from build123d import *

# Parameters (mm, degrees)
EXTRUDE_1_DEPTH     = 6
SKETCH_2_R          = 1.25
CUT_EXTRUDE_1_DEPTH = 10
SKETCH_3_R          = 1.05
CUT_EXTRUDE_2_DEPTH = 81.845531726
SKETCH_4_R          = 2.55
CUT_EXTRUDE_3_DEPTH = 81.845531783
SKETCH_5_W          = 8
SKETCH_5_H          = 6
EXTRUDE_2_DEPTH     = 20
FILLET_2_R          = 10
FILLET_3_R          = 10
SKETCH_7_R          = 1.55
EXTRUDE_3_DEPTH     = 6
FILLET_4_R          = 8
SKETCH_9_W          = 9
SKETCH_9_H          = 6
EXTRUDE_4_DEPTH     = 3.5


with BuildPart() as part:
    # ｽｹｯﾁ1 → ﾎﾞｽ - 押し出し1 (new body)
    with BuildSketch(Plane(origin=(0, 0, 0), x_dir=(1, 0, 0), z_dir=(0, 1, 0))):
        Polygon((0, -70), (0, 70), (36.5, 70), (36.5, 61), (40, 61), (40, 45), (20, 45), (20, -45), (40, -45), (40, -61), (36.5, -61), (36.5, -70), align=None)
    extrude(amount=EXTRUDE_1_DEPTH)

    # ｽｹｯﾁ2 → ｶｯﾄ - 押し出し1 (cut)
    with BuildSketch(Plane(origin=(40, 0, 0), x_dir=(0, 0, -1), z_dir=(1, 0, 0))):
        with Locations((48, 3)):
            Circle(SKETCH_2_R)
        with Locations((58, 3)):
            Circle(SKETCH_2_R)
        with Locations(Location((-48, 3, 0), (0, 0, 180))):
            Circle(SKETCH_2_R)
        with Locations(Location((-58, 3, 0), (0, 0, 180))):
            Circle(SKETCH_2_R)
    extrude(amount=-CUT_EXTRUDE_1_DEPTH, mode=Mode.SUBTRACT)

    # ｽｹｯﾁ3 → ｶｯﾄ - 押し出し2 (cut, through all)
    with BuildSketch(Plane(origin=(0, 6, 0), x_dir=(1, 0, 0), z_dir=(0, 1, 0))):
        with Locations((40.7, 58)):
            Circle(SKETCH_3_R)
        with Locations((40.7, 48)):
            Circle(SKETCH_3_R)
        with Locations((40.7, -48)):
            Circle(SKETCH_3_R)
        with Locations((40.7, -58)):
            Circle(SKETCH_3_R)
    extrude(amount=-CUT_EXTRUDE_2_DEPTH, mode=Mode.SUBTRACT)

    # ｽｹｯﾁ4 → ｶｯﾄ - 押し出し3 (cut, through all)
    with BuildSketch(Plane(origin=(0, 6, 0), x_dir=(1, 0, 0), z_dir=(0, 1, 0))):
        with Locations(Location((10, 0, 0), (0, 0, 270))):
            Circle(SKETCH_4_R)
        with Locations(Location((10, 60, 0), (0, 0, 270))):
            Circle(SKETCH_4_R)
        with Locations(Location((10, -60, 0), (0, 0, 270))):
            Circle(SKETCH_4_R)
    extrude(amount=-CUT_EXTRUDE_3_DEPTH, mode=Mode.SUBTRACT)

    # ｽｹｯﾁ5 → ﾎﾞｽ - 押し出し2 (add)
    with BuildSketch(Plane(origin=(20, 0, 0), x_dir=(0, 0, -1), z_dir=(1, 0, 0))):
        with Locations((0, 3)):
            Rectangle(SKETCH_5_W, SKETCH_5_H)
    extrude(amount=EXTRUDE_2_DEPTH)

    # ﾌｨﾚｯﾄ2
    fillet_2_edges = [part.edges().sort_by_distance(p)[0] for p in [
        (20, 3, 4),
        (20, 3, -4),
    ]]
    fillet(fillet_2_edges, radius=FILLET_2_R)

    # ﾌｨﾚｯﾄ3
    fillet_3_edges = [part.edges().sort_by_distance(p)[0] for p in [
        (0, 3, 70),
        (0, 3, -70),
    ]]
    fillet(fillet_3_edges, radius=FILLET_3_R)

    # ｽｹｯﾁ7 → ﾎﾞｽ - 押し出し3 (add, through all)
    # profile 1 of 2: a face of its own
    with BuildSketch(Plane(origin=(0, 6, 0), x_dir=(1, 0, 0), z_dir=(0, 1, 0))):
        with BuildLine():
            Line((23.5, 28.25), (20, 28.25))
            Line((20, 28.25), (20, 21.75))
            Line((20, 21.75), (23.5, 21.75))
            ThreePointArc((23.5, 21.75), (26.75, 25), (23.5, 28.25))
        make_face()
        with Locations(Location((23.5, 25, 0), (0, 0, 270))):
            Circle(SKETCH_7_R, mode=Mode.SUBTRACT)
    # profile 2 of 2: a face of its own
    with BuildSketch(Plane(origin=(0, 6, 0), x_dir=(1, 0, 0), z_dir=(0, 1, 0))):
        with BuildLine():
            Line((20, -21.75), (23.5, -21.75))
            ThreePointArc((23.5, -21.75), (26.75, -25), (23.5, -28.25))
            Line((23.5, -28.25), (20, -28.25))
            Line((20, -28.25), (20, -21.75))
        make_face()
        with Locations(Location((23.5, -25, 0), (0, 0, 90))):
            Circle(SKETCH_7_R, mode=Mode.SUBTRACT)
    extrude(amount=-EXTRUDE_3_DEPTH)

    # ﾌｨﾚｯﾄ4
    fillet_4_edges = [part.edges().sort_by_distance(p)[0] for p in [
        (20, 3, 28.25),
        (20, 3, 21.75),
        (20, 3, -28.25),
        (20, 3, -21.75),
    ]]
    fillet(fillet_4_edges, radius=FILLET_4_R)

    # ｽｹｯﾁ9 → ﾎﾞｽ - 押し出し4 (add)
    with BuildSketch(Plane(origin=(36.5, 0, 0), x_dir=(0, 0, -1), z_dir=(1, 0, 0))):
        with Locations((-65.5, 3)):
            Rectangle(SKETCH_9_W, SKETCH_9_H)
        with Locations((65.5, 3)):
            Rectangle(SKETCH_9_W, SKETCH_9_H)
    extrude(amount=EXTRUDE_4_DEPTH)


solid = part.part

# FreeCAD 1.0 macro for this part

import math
import FreeCAD as App
import Part
import Sketcher
from FreeCAD import Vector


def edges_at(feature, points):
    """Names of the edges that pass closest to the given points."""
    edges = feature.Shape.Edges
    near = lambda p: min(range(len(edges)), key=lambda i: edges[i].distToShape(Part.Vertex(*p))[0])
    return sorted({f"Edge{near(p) + 1}" for p in points})

doc = App.newDocument("Part")
body = doc.addObject("PartDesign::Body", "Body")

# Sketch on XZ plane
sketch1 = doc.addObject("Sketcher::SketchObject", "Sketch")
body.addObject(sketch1)
sketch1.AttachmentSupport = (doc.XZ_Plane, [""])
sketch1.MapMode = "FlatFace"
sketch1.addGeometry([
    Part.LineSegment(Vector(0, -70, 0), Vector(0, 70, 0)),  # 0
    Part.LineSegment(Vector(0, 70, 0), Vector(36.5, 70, 0)),  # 1
    Part.LineSegment(Vector(36.5, 70, 0), Vector(36.5, 61, 0)),  # 2
    Part.LineSegment(Vector(36.5, 61, 0), Vector(40, 61, 0)),  # 3
    Part.LineSegment(Vector(40, 61, 0), Vector(40, 45, 0)),  # 4
    Part.LineSegment(Vector(40, 45, 0), Vector(20, 45, 0)),  # 5
    Part.LineSegment(Vector(20, 45, 0), Vector(20, -45, 0)),  # 6
    Part.LineSegment(Vector(20, -45, 0), Vector(40, -45, 0)),  # 7
    Part.LineSegment(Vector(40, -45, 0), Vector(40, -61, 0)),  # 8
    Part.LineSegment(Vector(40, -61, 0), Vector(36.5, -61, 0)),  # 9
    Part.LineSegment(Vector(36.5, -61, 0), Vector(36.5, -70, 0)),  # 10
    Part.LineSegment(Vector(36.5, -70, 0), Vector(0, -70, 0)),  # 11
], False)
sketch1.addConstraint([
    Sketcher.Constraint("Coincident", 0, 2, 1, 1),
    Sketcher.Constraint("Coincident", 1, 2, 2, 1),
    Sketcher.Constraint("Coincident", 2, 2, 3, 1),
    Sketcher.Constraint("Coincident", 3, 2, 4, 1),
    Sketcher.Constraint("Coincident", 4, 2, 5, 1),
    Sketcher.Constraint("Coincident", 5, 2, 6, 1),
    Sketcher.Constraint("Coincident", 6, 2, 7, 1),
    Sketcher.Constraint("Coincident", 7, 2, 8, 1),
    Sketcher.Constraint("Coincident", 8, 2, 9, 1),
    Sketcher.Constraint("Coincident", 9, 2, 10, 1),
    Sketcher.Constraint("Coincident", 10, 2, 11, 1),
    Sketcher.Constraint("Coincident", 11, 2, 0, 1),
    Sketcher.Constraint("Vertical", 0),
    Sketcher.Constraint("Horizontal", 1),
    Sketcher.Constraint("Vertical", 2),
    Sketcher.Constraint("Horizontal", 3),
    Sketcher.Constraint("Vertical", 4),
    Sketcher.Constraint("Horizontal", 5),
    Sketcher.Constraint("Vertical", 6),
    Sketcher.Constraint("Horizontal", 7),
    Sketcher.Constraint("Vertical", 8),
    Sketcher.Constraint("Horizontal", 9),
    Sketcher.Constraint("Vertical", 10),
    Sketcher.Constraint("Horizontal", 11),
    Sketcher.Constraint("Symmetric", 0, 2, 11, 2, -1, 1),
    Sketcher.Constraint("Symmetric", 4, 2, 7, 2, -1),
    Sketcher.Constraint("Symmetric", 2, 2, 9, 2, -1),
    Sketcher.Constraint("DistanceX", 5, 2, 5, 1, 20.0),
    Sketcher.Constraint("DistanceY", 0, 1, 0, 2, 140.0),
    Sketcher.Constraint("DistanceY", 2, 2, 2, 1, 9.0),
    Sketcher.Constraint("DistanceY", 4, 2, 4, 1, 16.0),
    Sketcher.Constraint("DistanceX", 1, 1, 1, 2, 36.5),
    Sketcher.Constraint("DistanceX", 3, 1, 3, 2, 3.5),
])
pad1 = doc.addObject("PartDesign::Pad", "Pad")
body.addObject(pad1)
pad1.Profile = sketch1
pad1.Length = 6
pad1.Reversed = True

# Sketch on YZ plane
sketch2 = doc.addObject("Sketcher::SketchObject", "Sketch001")
body.addObject(sketch2)
sketch2.AttachmentSupport = (doc.YZ_Plane, [""])
sketch2.MapMode = "FlatFace"
sketch2.AttachmentOffset = App.Placement(Vector(0, 0, 40), App.Rotation())
sketch2.addGeometry([
    Part.Circle(Vector(3, -48, 0), Vector(0, 0, 1), 1.25),
    Part.Circle(Vector(3, -58, 0), Vector(0, 0, 1), 1.25),
    Part.Circle(Vector(3, 48, 0), Vector(0, 0, 1), 1.25),
    Part.Circle(Vector(3, 58, 0), Vector(0, 0, 1), 1.25),
], False)
sketch2.addConstraint([
    Sketcher.Constraint("Equal", 0, 1),
    Sketcher.Constraint("Equal", 1, 2),
    Sketcher.Constraint("Equal", 2, 3),
    Sketcher.Constraint("Symmetric", 0, 3, 2, 3, -1),
    Sketcher.Constraint("Symmetric", 1, 3, 3, 3, -1),
    Sketcher.Constraint("Vertical", 0, 3, 1, 3),
    Sketcher.Constraint("Diameter", 0, 2.5),
    Sketcher.Constraint("DistanceX", -1, 1, 0, 3, 3.0),
    Sketcher.Constraint("DistanceY", 0, 3, -1, 1, 48.0),
    Sketcher.Constraint("DistanceY", 1, 3, -1, 1, 58.0),
])
pocket1 = doc.addObject("PartDesign::Pocket", "Pocket")
body.addObject(pocket1)
pocket1.Profile = sketch2
pocket1.Length = 10

# Sketch on XZ plane
sketch3 = doc.addObject("Sketcher::SketchObject", "Sketch002")
body.addObject(sketch3)
sketch3.AttachmentSupport = (doc.XZ_Plane, [""])
sketch3.MapMode = "FlatFace"
sketch3.AttachmentOffset = App.Placement(Vector(0, 0, -6), App.Rotation())
sketch3.addGeometry([
    Part.Circle(Vector(40.7, -58, 0), Vector(0, 0, 1), 1.05),
    Part.Circle(Vector(40.7, -48, 0), Vector(0, 0, 1), 1.05),
    Part.Circle(Vector(40.7, 48, 0), Vector(0, 0, 1), 1.05),
    Part.Circle(Vector(40.7, 58, 0), Vector(0, 0, 1), 1.05),
], False)
sketch3.addConstraint([
    Sketcher.Constraint("Equal", 0, 1),
    Sketcher.Constraint("Equal", 1, 2),
    Sketcher.Constraint("Equal", 2, 3),
    Sketcher.Constraint("Symmetric", 1, 3, 2, 3, -1),
    Sketcher.Constraint("Symmetric", 0, 3, 3, 3, -1),
    Sketcher.Constraint("Vertical", 0, 3, 1, 3),
    Sketcher.Constraint("Diameter", 0, 2.1),
    Sketcher.Constraint("DistanceY", 0, 3, -1, 1, 58.0),
    Sketcher.Constraint("DistanceY", 1, 3, -1, 1, 48.0),
    Sketcher.Constraint("DistanceX", -1, 1, 0, 3, 40.7),
])
pocket2 = doc.addObject("PartDesign::Pocket", "Pocket001")
body.addObject(pocket2)
pocket2.Profile = sketch3
pocket2.Type = "ThroughAll"
pocket2.Reversed = True

# Sketch on XZ plane
sketch4 = doc.addObject("Sketcher::SketchObject", "Sketch003")
body.addObject(sketch4)
sketch4.AttachmentSupport = (doc.XZ_Plane, [""])
sketch4.MapMode = "FlatFace"
sketch4.AttachmentOffset = App.Placement(Vector(0, 0, -6), App.Rotation())
sketch4.addGeometry([
    Part.Circle(Vector(10, 0, 0), Vector(0, 0, 1), 2.55),
    Part.Circle(Vector(10, -60, 0), Vector(0, 0, 1), 2.55),
    Part.Circle(Vector(10, 60, 0), Vector(0, 0, 1), 2.55),
], False)
sketch4.addConstraint([
    Sketcher.Constraint("Equal", 0, 1),
    Sketcher.Constraint("Equal", 1, 2),
    Sketcher.Constraint("Symmetric", 1, 3, 2, 3, -1),
    Sketcher.Constraint("PointOnObject", 0, 3, -1),
    Sketcher.Constraint("Vertical", 0, 3, 1, 3),
    Sketcher.Constraint("Diameter", 0, 5.1),
    Sketcher.Constraint("DistanceX", -1, 1, 0, 3, 10.0),
    Sketcher.Constraint("DistanceY", 1, 3, -1, 1, 60.0),
])
pocket3 = doc.addObject("PartDesign::Pocket", "Pocket002")
body.addObject(pocket3)
pocket3.Profile = sketch4
pocket3.Type = "ThroughAll"
pocket3.Reversed = True

# Sketch on YZ plane
sketch5 = doc.addObject("Sketcher::SketchObject", "Sketch004")
body.addObject(sketch5)
sketch5.AttachmentSupport = (doc.YZ_Plane, [""])
sketch5.MapMode = "FlatFace"
sketch5.AttachmentOffset = App.Placement(Vector(0, 0, 20), App.Rotation())
sketch5.addGeometry([
    Part.LineSegment(Vector(6, 4, 0), Vector(0, 4, 0)),
    Part.LineSegment(Vector(0, 4, 0), Vector(0, -4, 0)),
    Part.LineSegment(Vector(0, -4, 0), Vector(6, -4, 0)),
    Part.LineSegment(Vector(6, -4, 0), Vector(6, 4, 0)),
], False)
sketch5.addConstraint([
    Sketcher.Constraint("Coincident", 0, 2, 1, 1),
    Sketcher.Constraint("Coincident", 1, 2, 2, 1),
    Sketcher.Constraint("Coincident", 2, 2, 3, 1),
    Sketcher.Constraint("Coincident", 3, 2, 0, 1),
    Sketcher.Constraint("Horizontal", 0),
    Sketcher.Constraint("Vertical", 1),
    Sketcher.Constraint("Horizontal", 2),
    Sketcher.Constraint("Vertical", 3),
    Sketcher.Constraint("Symmetric", 0, 2, 1, 2, -1, 1),
    Sketcher.Constraint("DistanceX", 0, 2, 0, 1, 6.0),
    Sketcher.Constraint("DistanceY", 1, 2, 1, 1, 8.0),
])
pad2 = doc.addObject("PartDesign::Pad", "Pad001")
body.addObject(pad2)
pad2.Profile = sketch5
pad2.Length = 20
doc.recompute()

fillet = doc.addObject("PartDesign::Fillet", "Fillet")
body.addObject(fillet)
fillet.Base = (pad2, edges_at(pad2, [(20, 3, 4), (20, 3, -4)]))
fillet.Radius = 10
doc.recompute()

fillet2 = doc.addObject("PartDesign::Fillet", "Fillet001")
body.addObject(fillet2)
fillet2.Base = (fillet, edges_at(fillet, [(0, 3, 70), (0, 3, -70)]))
fillet2.Radius = 10

# Sketch on XZ plane
sketch6 = doc.addObject("Sketcher::SketchObject", "Sketch005")
body.addObject(sketch6)
sketch6.AttachmentSupport = (doc.XZ_Plane, [""])
sketch6.MapMode = "FlatFace"
sketch6.AttachmentOffset = App.Placement(Vector(0, 0, -6), App.Rotation())
sketch6.addGeometry([
    Part.LineSegment(Vector(23.5, -28.25, 0), Vector(20, -28.25, 0)),  # 0
    Part.LineSegment(Vector(20, -28.25, 0), Vector(20, -21.75, 0)),  # 1
    Part.LineSegment(Vector(20, -21.75, 0), Vector(23.5, -21.75, 0)),  # 2
    Part.ArcOfCircle(Part.Circle(Vector(23.5, -25, 0), Vector(0, 0, 1), 3.25), math.radians(-90), math.radians(90)),  # 3
    Part.Circle(Vector(23.5, -25, 0), Vector(0, 0, 1), 1.55),  # 4
    Part.LineSegment(Vector(23.5, 21.75, 0), Vector(20, 21.75, 0)),  # 5
    Part.LineSegment(Vector(20, 21.75, 0), Vector(20, 28.25, 0)),  # 6
    Part.LineSegment(Vector(20, 28.25, 0), Vector(23.5, 28.25, 0)),  # 7
    Part.ArcOfCircle(Part.Circle(Vector(23.5, 25, 0), Vector(0, 0, 1), 3.25), math.radians(-90), math.radians(90)),  # 8
    Part.Circle(Vector(23.5, 25, 0), Vector(0, 0, 1), 1.55),  # 9
], False)
sketch6.addConstraint([
    Sketcher.Constraint("Coincident", 0, 2, 1, 1),
    Sketcher.Constraint("Coincident", 1, 2, 2, 1),
    Sketcher.Constraint("Tangent", 2, 2, 3, 2),
    Sketcher.Constraint("Tangent", 3, 1, 0, 1),
    Sketcher.Constraint("Coincident", 5, 2, 6, 1),
    Sketcher.Constraint("Coincident", 6, 2, 7, 1),
    Sketcher.Constraint("Tangent", 7, 2, 8, 2),
    Sketcher.Constraint("Tangent", 8, 1, 5, 1),
    Sketcher.Constraint("Horizontal", 0),
    Sketcher.Constraint("Vertical", 1),
    Sketcher.Constraint("Horizontal", 2),
    Sketcher.Constraint("Horizontal", 5),
    Sketcher.Constraint("Vertical", 6),
    Sketcher.Constraint("Horizontal", 7),
    Sketcher.Constraint("Coincident", 4, 3, 3, 3),
    Sketcher.Constraint("Coincident", 9, 3, 8, 3),
    Sketcher.Constraint("Equal", 3, 8),
    Sketcher.Constraint("Equal", 4, 9),
    Sketcher.Constraint("Symmetric", 3, 3, 8, 3, -1),
    Sketcher.Constraint("Vertical", 1, 2, 5, 2),
    Sketcher.Constraint("Diameter", 4, 3.1),
    Sketcher.Constraint("Radius", 3, 3.25),
    Sketcher.Constraint("DistanceX", 0, 2, 0, 1, 3.5),
    Sketcher.Constraint("DistanceY", 3, 3, -1, 1, 25.0),
    Sketcher.Constraint("DistanceX", -1, 1, 0, 2, 20.0),
])
pad3 = doc.addObject("PartDesign::Pad", "Pad002")
body.addObject(pad3)
pad3.Profile = sketch6
pad3.Length = 6
doc.recompute()

fillet3 = doc.addObject("PartDesign::Fillet", "Fillet002")
body.addObject(fillet3)
fillet3.Base = (pad3, edges_at(pad3, [
    (20, 3, 28.25),
    (20, 3, 21.75),
    (20, 3, -28.25),
    (20, 3, -21.75),
]))
fillet3.Radius = 8

# Sketch on YZ plane
sketch7 = doc.addObject("Sketcher::SketchObject", "Sketch006")
body.addObject(sketch7)
sketch7.AttachmentSupport = (doc.YZ_Plane, [""])
sketch7.MapMode = "FlatFace"
sketch7.AttachmentOffset = App.Placement(Vector(0, 0, 36.5), App.Rotation())
sketch7.addGeometry([
    Part.LineSegment(Vector(6, 70, 0), Vector(0, 70, 0)),  # 0
    Part.LineSegment(Vector(0, 70, 0), Vector(0, 61, 0)),  # 1
    Part.LineSegment(Vector(0, 61, 0), Vector(6, 61, 0)),  # 2
    Part.LineSegment(Vector(6, 61, 0), Vector(6, 70, 0)),  # 3
    Part.LineSegment(Vector(6, -61, 0), Vector(0, -61, 0)),  # 4
    Part.LineSegment(Vector(0, -61, 0), Vector(0, -70, 0)),  # 5
    Part.LineSegment(Vector(0, -70, 0), Vector(6, -70, 0)),  # 6
    Part.LineSegment(Vector(6, -70, 0), Vector(6, -61, 0)),  # 7
], False)
sketch7.addConstraint([
    Sketcher.Constraint("Coincident", 0, 2, 1, 1),
    Sketcher.Constraint("Coincident", 1, 2, 2, 1),
    Sketcher.Constraint("Coincident", 2, 2, 3, 1),
    Sketcher.Constraint("Coincident", 3, 2, 0, 1),
    Sketcher.Constraint("Coincident", 4, 2, 5, 1),
    Sketcher.Constraint("Coincident", 5, 2, 6, 1),
    Sketcher.Constraint("Coincident", 6, 2, 7, 1),
    Sketcher.Constraint("Coincident", 7, 2, 4, 1),
    Sketcher.Constraint("Horizontal", 0),
    Sketcher.Constraint("Vertical", 1),
    Sketcher.Constraint("Horizontal", 2),
    Sketcher.Constraint("Vertical", 3),
    Sketcher.Constraint("Horizontal", 4),
    Sketcher.Constraint("Vertical", 5),
    Sketcher.Constraint("Horizontal", 6),
    Sketcher.Constraint("Vertical", 7),
    Sketcher.Constraint("Symmetric", 1, 2, 4, 2, -1, 1),
    Sketcher.Constraint("Symmetric", 0, 2, 5, 2, -1),
    Sketcher.Constraint("Vertical", 3, 2, 6, 2),
    Sketcher.Constraint("DistanceX", 0, 2, 0, 1, 6.0),
    Sketcher.Constraint("DistanceY", 1, 2, 1, 1, 9.0),
    Sketcher.Constraint("DistanceY", -1, 1, 0, 2, 70.0),
])
pad4 = doc.addObject("PartDesign::Pad", "Pad003")
body.addObject(pad4)
pad4.Profile = sketch7
pad4.Length = 3.5

doc.recompute()
